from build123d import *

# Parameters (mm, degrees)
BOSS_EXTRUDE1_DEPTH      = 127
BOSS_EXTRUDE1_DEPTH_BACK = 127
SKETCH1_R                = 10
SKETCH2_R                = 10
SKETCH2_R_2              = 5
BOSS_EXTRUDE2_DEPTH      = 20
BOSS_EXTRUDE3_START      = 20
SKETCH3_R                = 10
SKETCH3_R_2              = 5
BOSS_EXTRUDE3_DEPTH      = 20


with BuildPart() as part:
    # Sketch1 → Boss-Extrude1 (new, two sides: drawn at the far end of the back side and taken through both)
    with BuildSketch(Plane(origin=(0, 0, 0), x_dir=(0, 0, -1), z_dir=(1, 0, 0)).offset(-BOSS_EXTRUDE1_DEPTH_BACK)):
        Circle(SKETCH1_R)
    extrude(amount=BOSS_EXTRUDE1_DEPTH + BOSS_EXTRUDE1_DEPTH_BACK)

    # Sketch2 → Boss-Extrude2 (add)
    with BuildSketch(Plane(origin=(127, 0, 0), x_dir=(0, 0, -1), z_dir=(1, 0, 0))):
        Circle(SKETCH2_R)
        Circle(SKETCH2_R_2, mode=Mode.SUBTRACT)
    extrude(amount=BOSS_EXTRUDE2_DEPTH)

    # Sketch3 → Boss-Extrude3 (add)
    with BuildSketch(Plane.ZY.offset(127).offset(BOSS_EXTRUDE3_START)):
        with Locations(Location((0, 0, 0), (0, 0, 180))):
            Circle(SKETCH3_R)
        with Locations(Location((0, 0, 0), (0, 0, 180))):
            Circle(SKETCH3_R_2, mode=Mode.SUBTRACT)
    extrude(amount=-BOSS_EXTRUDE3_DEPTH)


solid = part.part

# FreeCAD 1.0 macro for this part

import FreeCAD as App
import Part
import Sketcher
Q = App.Units.Quantity

doc = App.newDocument("Part")
body = doc.addObject("PartDesign::Body", "Body")

# Sketch on YZ plane
sketch1 = doc.addObject("Sketcher::SketchObject", "Sketch")
body.addObject(sketch1)
sketch1.AttachmentSupport = (doc.YZ_Plane, [""])
sketch1.MapMode = "FlatFace"
sketch1.addGeometry(Part.Circle(App.Vector(0, 0, 0), App.Vector(0, 0, 1), 10), False)
sketch1.addConstraint([
    Sketcher.Constraint("Coincident", 0, 3, -1, 1),
    Sketcher.Constraint("Diameter", 0, Q("20 mm")),
])
pad1 = doc.addObject("PartDesign::Pad", "Pad")
body.addObject(pad1)
pad1.Profile = sketch1
pad1.Type = "TwoLengths"
pad1.Length = 127
pad1.Length2 = 127

# Sketch on YZ plane
sketch2 = doc.addObject("Sketcher::SketchObject", "Sketch001")
body.addObject(sketch2)
sketch2.AttachmentSupport = (doc.YZ_Plane, [""])
sketch2.MapMode = "FlatFace"
sketch2.AttachmentOffset = App.Placement(App.Vector(0, 0, 127), App.Rotation())
sketch2.addGeometry([
    Part.Circle(App.Vector(0, 0, 0), App.Vector(0, 0, 1), 10),
    Part.Circle(App.Vector(0, 0, 0), App.Vector(0, 0, 1), 5),
], False)
sketch2.addConstraint([
    Sketcher.Constraint("Coincident", 0, 3, -1, 1),
    Sketcher.Constraint("Coincident", 1, 3, -1, 1),
    Sketcher.Constraint("Diameter", 0, Q("20 mm")),
    Sketcher.Constraint("Diameter", 1, Q("10 mm")),
])
pad2 = doc.addObject("PartDesign::Pad", "Pad001")
body.addObject(pad2)
pad2.Profile = sketch2
pad2.Length = 20

# Sketch on YZ plane
sketch3 = doc.addObject("Sketcher::SketchObject", "Sketch002")
body.addObject(sketch3)
sketch3.AttachmentSupport = (doc.YZ_Plane, [""])
sketch3.MapMode = "FlatFace"
sketch3.AttachmentOffset = App.Placement(App.Vector(0, 0, -147), App.Rotation())
sketch3.addGeometry([
    Part.Circle(App.Vector(0, 0, 0), App.Vector(0, 0, 1), 10),
    Part.Circle(App.Vector(0, 0, 0), App.Vector(0, 0, 1), 5),
], False)
sketch3.addConstraint([
    Sketcher.Constraint("Coincident", 0, 3, -1, 1),
    Sketcher.Constraint("Coincident", 1, 3, -1, 1),
    Sketcher.Constraint("Diameter", 0, Q("20 mm")),
    Sketcher.Constraint("Diameter", 1, Q("10 mm")),
])
pad3 = doc.addObject("PartDesign::Pad", "Pad002")
body.addObject(pad3)
pad3.Profile = sketch3
pad3.Length = 20

doc.recompute()
